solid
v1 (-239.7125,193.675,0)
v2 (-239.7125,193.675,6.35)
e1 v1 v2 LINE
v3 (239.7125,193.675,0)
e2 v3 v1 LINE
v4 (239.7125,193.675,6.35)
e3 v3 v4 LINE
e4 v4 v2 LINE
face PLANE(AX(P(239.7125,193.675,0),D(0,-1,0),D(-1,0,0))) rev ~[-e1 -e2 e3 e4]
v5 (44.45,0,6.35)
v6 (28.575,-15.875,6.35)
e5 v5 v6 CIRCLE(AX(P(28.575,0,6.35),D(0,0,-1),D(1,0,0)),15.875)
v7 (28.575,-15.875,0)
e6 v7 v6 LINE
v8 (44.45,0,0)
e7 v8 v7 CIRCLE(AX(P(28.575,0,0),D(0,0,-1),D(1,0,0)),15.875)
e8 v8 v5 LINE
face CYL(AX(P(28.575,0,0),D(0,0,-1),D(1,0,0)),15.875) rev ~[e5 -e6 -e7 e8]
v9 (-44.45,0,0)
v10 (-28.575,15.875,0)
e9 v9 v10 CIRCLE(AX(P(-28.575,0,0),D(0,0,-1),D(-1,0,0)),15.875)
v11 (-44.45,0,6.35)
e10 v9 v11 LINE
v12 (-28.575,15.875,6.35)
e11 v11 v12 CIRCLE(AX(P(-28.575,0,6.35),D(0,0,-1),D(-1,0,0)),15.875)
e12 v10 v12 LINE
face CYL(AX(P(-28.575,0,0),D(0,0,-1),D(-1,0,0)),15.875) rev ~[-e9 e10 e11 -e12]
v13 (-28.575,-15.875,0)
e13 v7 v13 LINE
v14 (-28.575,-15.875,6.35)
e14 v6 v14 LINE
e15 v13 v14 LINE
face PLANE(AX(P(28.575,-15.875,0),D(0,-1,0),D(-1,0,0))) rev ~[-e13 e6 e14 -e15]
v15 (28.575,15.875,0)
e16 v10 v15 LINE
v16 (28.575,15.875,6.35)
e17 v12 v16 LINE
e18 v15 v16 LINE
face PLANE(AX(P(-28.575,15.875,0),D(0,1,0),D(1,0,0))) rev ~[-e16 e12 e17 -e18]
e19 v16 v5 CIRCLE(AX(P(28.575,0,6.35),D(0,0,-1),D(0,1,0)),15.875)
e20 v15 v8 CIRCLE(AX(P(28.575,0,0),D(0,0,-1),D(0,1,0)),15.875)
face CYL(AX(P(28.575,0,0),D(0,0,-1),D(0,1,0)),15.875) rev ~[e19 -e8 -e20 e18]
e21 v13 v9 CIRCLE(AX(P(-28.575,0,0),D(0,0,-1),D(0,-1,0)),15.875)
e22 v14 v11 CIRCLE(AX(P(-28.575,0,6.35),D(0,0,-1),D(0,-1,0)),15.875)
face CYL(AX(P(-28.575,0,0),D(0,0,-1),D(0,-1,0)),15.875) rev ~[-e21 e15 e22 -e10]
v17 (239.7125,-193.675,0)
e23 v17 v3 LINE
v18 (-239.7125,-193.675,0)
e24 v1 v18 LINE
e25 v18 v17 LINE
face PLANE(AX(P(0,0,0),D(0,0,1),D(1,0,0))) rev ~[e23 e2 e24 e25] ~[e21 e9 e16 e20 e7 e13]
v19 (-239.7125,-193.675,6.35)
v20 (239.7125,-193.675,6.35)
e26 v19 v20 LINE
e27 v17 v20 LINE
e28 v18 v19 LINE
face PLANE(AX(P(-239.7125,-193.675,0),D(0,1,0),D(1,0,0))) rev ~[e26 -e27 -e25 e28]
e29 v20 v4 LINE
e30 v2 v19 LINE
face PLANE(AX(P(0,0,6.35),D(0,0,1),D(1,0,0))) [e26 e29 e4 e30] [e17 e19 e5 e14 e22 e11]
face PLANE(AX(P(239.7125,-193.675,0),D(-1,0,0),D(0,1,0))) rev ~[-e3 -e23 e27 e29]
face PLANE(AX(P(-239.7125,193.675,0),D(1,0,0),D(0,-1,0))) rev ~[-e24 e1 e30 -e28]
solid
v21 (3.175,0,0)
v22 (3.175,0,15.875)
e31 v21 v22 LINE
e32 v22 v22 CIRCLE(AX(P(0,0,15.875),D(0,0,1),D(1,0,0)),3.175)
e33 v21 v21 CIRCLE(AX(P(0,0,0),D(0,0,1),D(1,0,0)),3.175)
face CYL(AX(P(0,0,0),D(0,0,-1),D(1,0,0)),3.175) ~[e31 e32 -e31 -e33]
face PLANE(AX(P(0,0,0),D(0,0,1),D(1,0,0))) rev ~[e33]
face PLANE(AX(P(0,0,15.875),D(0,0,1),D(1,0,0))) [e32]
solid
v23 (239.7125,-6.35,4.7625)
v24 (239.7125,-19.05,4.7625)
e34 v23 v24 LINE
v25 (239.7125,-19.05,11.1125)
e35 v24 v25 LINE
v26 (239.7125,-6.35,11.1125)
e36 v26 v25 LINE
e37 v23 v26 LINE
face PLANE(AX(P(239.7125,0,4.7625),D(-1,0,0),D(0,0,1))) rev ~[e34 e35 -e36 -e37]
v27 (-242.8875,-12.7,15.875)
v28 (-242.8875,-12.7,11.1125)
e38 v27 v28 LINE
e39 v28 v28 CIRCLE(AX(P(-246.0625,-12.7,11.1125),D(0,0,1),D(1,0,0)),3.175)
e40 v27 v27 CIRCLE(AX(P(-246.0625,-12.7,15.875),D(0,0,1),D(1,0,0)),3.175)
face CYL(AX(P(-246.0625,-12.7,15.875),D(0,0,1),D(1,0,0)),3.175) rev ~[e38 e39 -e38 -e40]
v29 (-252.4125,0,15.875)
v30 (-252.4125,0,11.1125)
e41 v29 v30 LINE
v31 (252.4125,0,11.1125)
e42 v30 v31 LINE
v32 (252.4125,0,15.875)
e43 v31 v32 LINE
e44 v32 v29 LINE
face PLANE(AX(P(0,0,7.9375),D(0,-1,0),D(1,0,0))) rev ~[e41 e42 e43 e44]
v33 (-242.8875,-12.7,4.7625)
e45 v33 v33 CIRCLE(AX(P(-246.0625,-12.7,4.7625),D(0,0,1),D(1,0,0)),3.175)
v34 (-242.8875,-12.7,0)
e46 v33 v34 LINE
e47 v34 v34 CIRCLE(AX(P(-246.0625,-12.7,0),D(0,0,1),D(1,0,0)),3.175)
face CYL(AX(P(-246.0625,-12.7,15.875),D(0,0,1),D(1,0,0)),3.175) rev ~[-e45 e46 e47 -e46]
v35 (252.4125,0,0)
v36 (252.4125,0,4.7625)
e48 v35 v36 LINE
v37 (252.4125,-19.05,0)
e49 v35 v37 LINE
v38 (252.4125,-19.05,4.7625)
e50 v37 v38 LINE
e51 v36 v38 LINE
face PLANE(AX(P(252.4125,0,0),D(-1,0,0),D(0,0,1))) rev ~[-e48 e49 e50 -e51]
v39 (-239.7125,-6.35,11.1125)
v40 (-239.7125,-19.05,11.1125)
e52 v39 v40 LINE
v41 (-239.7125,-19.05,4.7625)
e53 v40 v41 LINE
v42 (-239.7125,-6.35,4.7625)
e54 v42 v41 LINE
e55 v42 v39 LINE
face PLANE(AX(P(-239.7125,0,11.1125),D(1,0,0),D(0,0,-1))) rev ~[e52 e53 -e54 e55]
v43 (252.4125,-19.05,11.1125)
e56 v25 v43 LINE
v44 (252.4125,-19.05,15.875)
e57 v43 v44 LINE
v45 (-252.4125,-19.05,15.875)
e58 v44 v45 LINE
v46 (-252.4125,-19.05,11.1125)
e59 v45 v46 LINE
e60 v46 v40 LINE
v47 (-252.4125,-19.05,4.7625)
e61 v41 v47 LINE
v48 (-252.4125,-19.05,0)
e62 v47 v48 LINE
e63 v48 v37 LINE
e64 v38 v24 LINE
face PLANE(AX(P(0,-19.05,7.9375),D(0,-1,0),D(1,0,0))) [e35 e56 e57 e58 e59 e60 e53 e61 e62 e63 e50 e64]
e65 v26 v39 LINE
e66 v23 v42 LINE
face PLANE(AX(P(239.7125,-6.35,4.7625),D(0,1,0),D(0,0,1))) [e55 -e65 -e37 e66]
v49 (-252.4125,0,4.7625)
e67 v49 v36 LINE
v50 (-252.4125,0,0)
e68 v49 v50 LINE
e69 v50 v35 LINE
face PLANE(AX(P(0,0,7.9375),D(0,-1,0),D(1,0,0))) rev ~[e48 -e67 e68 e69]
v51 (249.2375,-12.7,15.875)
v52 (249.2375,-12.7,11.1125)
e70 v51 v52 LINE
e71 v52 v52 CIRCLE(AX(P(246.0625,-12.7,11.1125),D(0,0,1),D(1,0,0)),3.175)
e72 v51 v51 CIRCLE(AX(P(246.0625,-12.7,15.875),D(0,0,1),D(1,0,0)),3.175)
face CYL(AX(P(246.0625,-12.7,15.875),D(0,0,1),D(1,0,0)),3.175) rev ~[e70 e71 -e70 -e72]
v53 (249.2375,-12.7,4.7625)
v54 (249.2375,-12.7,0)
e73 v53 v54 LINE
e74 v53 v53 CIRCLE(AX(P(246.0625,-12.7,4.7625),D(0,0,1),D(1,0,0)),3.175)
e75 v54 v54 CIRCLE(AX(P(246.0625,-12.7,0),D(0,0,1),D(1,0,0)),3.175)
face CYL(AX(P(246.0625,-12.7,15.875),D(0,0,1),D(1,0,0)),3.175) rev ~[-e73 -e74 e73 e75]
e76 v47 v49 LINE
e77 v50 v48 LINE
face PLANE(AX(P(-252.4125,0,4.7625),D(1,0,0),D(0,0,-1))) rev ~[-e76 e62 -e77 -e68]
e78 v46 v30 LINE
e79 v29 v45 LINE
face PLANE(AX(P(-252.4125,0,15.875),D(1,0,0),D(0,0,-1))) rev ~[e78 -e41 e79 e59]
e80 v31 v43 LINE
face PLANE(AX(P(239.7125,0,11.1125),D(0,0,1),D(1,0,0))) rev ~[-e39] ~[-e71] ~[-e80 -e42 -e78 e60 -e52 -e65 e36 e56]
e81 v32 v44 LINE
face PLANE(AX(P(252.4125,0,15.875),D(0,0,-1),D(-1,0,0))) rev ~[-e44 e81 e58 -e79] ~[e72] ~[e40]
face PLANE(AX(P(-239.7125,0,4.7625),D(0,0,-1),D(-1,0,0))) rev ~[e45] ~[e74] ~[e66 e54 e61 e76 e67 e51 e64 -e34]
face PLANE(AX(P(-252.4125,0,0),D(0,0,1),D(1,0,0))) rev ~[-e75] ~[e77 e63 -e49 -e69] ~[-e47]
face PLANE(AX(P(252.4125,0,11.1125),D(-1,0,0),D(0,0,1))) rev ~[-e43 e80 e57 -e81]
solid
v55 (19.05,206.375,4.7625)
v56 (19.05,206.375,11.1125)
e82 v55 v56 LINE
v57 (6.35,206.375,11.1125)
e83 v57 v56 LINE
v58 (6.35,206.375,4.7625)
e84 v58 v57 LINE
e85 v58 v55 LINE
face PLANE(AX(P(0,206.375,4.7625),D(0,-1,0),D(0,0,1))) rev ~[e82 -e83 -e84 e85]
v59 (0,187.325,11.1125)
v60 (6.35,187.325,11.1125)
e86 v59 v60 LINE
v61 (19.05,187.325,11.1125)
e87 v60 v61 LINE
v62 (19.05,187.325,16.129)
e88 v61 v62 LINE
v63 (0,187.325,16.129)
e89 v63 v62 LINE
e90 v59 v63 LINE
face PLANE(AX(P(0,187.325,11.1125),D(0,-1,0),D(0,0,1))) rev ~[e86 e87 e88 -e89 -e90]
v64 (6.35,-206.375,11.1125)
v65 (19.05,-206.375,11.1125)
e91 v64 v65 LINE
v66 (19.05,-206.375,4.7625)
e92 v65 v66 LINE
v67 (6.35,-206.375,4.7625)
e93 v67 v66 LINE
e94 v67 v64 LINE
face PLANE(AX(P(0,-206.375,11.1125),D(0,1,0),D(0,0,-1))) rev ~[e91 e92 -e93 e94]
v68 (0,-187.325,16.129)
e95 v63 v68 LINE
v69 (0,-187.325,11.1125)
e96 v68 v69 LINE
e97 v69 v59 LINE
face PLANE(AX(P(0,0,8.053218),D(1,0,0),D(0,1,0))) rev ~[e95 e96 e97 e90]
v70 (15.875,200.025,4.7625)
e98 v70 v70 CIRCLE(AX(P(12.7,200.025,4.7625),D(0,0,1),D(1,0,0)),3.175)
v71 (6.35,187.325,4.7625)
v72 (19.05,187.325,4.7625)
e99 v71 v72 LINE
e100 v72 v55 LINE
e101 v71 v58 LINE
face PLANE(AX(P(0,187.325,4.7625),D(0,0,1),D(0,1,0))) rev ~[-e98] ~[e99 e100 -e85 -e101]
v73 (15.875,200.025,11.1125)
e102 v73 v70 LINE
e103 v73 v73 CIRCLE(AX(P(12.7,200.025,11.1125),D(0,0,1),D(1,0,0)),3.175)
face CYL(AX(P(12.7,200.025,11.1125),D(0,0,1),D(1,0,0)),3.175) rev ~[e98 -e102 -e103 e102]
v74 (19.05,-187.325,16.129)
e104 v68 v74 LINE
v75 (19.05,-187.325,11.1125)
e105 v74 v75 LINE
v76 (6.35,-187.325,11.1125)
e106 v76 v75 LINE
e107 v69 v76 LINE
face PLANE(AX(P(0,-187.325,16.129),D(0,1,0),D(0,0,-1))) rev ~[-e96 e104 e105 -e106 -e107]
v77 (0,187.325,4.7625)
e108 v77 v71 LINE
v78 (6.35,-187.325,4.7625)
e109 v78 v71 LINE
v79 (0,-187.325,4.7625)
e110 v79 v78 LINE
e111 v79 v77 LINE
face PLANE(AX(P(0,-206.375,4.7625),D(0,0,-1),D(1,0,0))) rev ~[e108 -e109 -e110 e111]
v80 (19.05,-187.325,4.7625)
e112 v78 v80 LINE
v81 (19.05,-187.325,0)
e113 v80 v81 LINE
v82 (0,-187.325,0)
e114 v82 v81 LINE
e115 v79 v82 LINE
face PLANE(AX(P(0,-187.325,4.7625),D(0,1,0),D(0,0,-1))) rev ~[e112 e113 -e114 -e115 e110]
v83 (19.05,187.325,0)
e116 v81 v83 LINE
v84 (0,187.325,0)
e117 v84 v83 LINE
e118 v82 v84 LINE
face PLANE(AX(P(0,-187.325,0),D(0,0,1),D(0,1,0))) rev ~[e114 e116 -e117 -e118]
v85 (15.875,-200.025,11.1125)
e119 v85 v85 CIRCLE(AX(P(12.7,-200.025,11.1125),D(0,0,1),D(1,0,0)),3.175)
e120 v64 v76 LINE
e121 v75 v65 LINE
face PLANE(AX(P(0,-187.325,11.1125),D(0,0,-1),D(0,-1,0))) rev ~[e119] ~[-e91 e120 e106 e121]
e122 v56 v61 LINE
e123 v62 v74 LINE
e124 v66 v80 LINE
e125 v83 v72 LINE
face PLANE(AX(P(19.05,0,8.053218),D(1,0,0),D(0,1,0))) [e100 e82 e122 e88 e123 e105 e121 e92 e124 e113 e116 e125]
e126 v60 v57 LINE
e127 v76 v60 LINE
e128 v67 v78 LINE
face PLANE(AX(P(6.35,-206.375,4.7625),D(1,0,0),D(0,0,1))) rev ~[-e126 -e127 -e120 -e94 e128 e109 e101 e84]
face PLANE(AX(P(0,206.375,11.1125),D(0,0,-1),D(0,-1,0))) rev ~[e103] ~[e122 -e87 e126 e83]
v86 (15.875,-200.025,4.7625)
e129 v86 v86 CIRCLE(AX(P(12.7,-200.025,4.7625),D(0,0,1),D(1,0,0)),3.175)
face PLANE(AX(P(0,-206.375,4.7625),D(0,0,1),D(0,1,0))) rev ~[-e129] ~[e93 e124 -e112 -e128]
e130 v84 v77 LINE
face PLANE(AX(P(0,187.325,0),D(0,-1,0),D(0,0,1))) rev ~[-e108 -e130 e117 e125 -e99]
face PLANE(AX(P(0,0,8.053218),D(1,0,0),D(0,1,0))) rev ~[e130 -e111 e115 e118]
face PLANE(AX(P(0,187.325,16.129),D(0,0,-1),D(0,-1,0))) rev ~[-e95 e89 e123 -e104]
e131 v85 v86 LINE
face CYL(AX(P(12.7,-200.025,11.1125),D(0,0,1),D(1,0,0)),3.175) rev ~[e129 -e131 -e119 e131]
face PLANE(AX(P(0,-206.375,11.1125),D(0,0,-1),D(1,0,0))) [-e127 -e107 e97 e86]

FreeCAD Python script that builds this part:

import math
import FreeCAD as App
import Part
import Sketcher
Q = App.Units.Quantity


def add_polygon(sketch, points):
    """Adds a closed chain of lines whose ends are joined by coincident constraints."""
    first, n = sketch.GeometryCount, len(points)
    for a, b in zip(points, points[1:] + points[:1]):
        sketch.addGeometry(Part.LineSegment(App.Vector(*a, 0), App.Vector(*b, 0)), False)
    for i in range(n):
        sketch.addConstraint(Sketcher.Constraint("Coincident", first + i, 2, first + (i + 1) % n, 1))

doc = App.newDocument("Part")
body = doc.addObject("PartDesign::Body", "Body")

# Sketch on XZ plane
sketch1 = doc.addObject("Sketcher::SketchObject", "Sketch")
body.addObject(sketch1)
sketch1.AttachmentSupport = (doc.XZ_Plane, [""])
sketch1.MapMode = "FlatFace"
add_polygon(sketch1, [(-252.4, 0), (252.4, 0), (252.4, 4.8), (239.7, 4.8), (239.7, 11.1), (252.4, 11.1), (252.4, 15.9), (-252.4, 15.9), (-252.4, 11.1), (-239.7, 11.1), (-239.7, 4.8), (-252.4, 4.8)])  # lines 0-11
sketch1.addConstraint([
    Sketcher.Constraint("Horizontal", 0),
    Sketcher.Constraint("Vertical", 1),
    Sketcher.Constraint("Horizontal", 2),
    Sketcher.Constraint("Vertical", 3),
    Sketcher.Constraint("Horizontal", 4),
    Sketcher.Constraint("Vertical", 5),
    Sketcher.Constraint("Horizontal", 6),
    Sketcher.Constraint("Vertical", 7),
    Sketcher.Constraint("Horizontal", 8),
    Sketcher.Constraint("Vertical", 9),
    Sketcher.Constraint("Horizontal", 10),
    Sketcher.Constraint("Vertical", 11),
    Sketcher.Constraint("Symmetric", 0, 2, 11, 2, -1, 1),
    Sketcher.Constraint("Symmetric", 4, 2, 7, 2, -2),
    Sketcher.Constraint("Symmetric", 2, 2, 9, 2, -2),
    Sketcher.Constraint("Vertical", 1, 2, 4, 2),
    Sketcher.Constraint("Equal", 1, 5),
    Sketcher.Constraint("DistanceX", 2, 2, 2, 1, Q("0.5 in")),
    Sketcher.Constraint("DistanceY", 3, 1, 3, 2, Q("0.25 in")),
    Sketcher.Constraint("DistanceX", 0, 1, 0, 2, Q("19.875 in")),
    Sketcher.Constraint("DistanceY", 1, 1, 1, 2, Q("0.1875 in")),
])
pad1 = doc.addObject("PartDesign::Pad", "Pad")
body.addObject(pad1)
pad1.Profile = sketch1
pad1.Length = Q("0.75 in")

# Sketch on YZ plane
sketch2 = doc.addObject("Sketcher::SketchObject", "Sketch001")
body.addObject(sketch2)
sketch2.AttachmentSupport = (doc.YZ_Plane, [""])
sketch2.MapMode = "FlatFace"
sketch2.AttachmentOffset = App.Placement(App.Vector(0, 0, 9.4375 * 25.4), App.Rotation())
add_polygon(sketch2, [(-6, 11), (-6, 5), (0, 5), (0, 11)])  # lines 0-3
sketch2.addConstraint([
    Sketcher.Constraint("Vertical", 0),
    Sketcher.Constraint("Horizontal", 1),
    Sketcher.Constraint("Vertical", 2),
    Sketcher.Constraint("Horizontal", 3),
    Sketcher.Constraint("PointOnObject", 1, 2, -2),
    Sketcher.Constraint("Equal", 3, 0),
    Sketcher.Constraint("DistanceX", 1, 1, 1, 2, Q("0.25 in")),
    Sketcher.Constraint("DistanceY", -1, 1, 0, 2, Q("0.1875 in")),
])
pocket1 = doc.addObject("PartDesign::Pocket", "Pocket")
body.addObject(pocket1)
pocket1.Profile = sketch2
pocket1.Type = "ThroughAll"

# Sketch on XY plane
sketch3 = doc.addObject("Sketcher::SketchObject", "Sketch002")
body.addObject(sketch3)
sketch3.AttachmentSupport = (doc.XY_Plane, [""])
sketch3.MapMode = "FlatFace"
sketch3.AttachmentOffset = App.Placement(App.Vector(0, 0, 0.625 * 25.4), App.Rotation())
sketch3.addGeometry([
    Part.Circle(App.Vector(-246.1, -12.7, 0), App.Vector(0, 0, 1), 3.2),
    Part.Circle(App.Vector(246.1, -12.7, 0), App.Vector(0, 0, 1), 3.2),
], False)
sketch3.addConstraint([
    Sketcher.Constraint("Equal", 0, 1),
    Sketcher.Constraint("Symmetric", 0, 3, 1, 3, -2),
    Sketcher.Constraint("Diameter", 0, Q("0.25 in")),
    Sketcher.Constraint("DistanceY", 0, 3, -1, 1, Q("0.5 in")),
    Sketcher.Constraint("DistanceX", 0, 3, -1, 1, Q("9.6875 in")),
])
pocket2 = doc.addObject("PartDesign::Pocket", "Pocket001")
body.addObject(pocket2)
pocket2.Profile = sketch3
pocket2.Type = "ThroughAll"
body2 = doc.addObject("PartDesign::Body", "Body001")

# Sketch on YZ plane
sketch4 = doc.addObject("Sketcher::SketchObject", "Sketch003")
body2.addObject(sketch4)
sketch4.AttachmentSupport = (doc.getObject("YZ_Plane001"), [""])
sketch4.MapMode = "FlatFace"
add_polygon(sketch4, [(-187.3, 0), (187.3, 0), (187.3, 4.8), (206.4, 4.8), (206.4, 11.1), (187.3, 11.1), (187.3, 16.1), (-187.3, 16.1), (-187.3, 11.1), (-206.4, 11.1), (-206.4, 4.8), (-187.3, 4.8)])  # lines 0-11
sketch4.addConstraint([
    Sketcher.Constraint("Horizontal", 0),
    Sketcher.Constraint("Vertical", 1),
    Sketcher.Constraint("Horizontal", 2),
    Sketcher.Constraint("Vertical", 3),
    Sketcher.Constraint("Horizontal", 4),
    Sketcher.Constraint("Vertical", 5),
    Sketcher.Constraint("Horizontal", 6),
    Sketcher.Constraint("Vertical", 7),
    Sketcher.Constraint("Horizontal", 8),
    Sketcher.Constraint("Vertical", 9),
    Sketcher.Constraint("Horizontal", 10),
    Sketcher.Constraint("Vertical", 11),
    Sketcher.Constraint("Symmetric", 0, 2, 11, 2, -1, 1),
    Sketcher.Constraint("Symmetric", 4, 2, 7, 2, -2),
    Sketcher.Constraint("Symmetric", 2, 2, 9, 2, -2),
    Sketcher.Constraint("Vertical", 1, 2, 4, 2),
    Sketcher.Constraint("DistanceX", 0, 1, 0, 2, Q("14.75 in")),
    Sketcher.Constraint("DistanceX", 2, 1, 2, 2, Q("0.75 in")),
    Sketcher.Constraint("DistanceY", 3, 1, 3, 2, Q("0.25 in")),
    Sketcher.Constraint("DistanceY", 1, 1, 1, 2, Q("0.1875 in")),
    Sketcher.Constraint("DistanceY", 5, 1, 5, 2, Q("0.1975 in")),
])
pad2 = doc.addObject("PartDesign::Pad", "Pad001")
body2.addObject(pad2)
pad2.Profile = sketch4
pad2.Length = Q("0.75 in")

# Sketch on XY plane
sketch5 = doc.addObject("Sketcher::SketchObject", "Sketch004")
body2.addObject(sketch5)
sketch5.AttachmentSupport = (doc.getObject("XY_Plane001"), [""])
sketch5.MapMode = "FlatFace"
sketch5.AttachmentOffset = App.Placement(App.Vector(0, 0, 0.4375 * 25.4), App.Rotation())
sketch5.addGeometry([
    Part.Circle(App.Vector(12.7, 200, 0), App.Vector(0, 0, 1), 3.2),
    Part.Circle(App.Vector(12.7, -200, 0), App.Vector(0, 0, 1), 3.2),
], False)
sketch5.addConstraint([
    Sketcher.Constraint("Equal", 0, 1),
    Sketcher.Constraint("Symmetric", 0, 3, 1, 3, -1),
    Sketcher.Constraint("Diameter", 0, Q("0.25 in")),
    Sketcher.Constraint("DistanceX", -1, 1, 0, 3, Q("0.5 in")),
    Sketcher.Constraint("DistanceY", 1, 3, 0, 3, Q("15.75 in")),
])
pocket3 = doc.addObject("PartDesign::Pocket", "Pocket002")
body2.addObject(pocket3)
pocket3.Profile = sketch5
pocket3.Type = "ThroughAll"

# Sketch on XZ plane
sketch6 = doc.addObject("Sketcher::SketchObject", "Sketch005")
body2.addObject(sketch6)
sketch6.AttachmentSupport = (doc.getObject("XZ_Plane001"), [""])
sketch6.MapMode = "FlatFace"
sketch6.AttachmentOffset = App.Placement(App.Vector(0, 0, 8.125 * 25.4), App.Rotation())
add_polygon(sketch6, [(0, 11), (0, 5), (6, 5), (6, 11)])  # lines 0-3
sketch6.addConstraint([
    Sketcher.Constraint("Vertical", 0),
    Sketcher.Constraint("Horizontal", 1),
    Sketcher.Constraint("Vertical", 2),
    Sketcher.Constraint("Horizontal", 3),
    Sketcher.Constraint("PointOnObject", 0, 2, -2),
    Sketcher.Constraint("Equal", 3, 0),
    Sketcher.Constraint("DistanceX", 1, 1, 1, 2, Q("0.25 in")),
    Sketcher.Constraint("DistanceY", -1, 1, 0, 2, Q("0.1875 in")),
])
pocket4 = doc.addObject("PartDesign::Pocket", "Pocket003")
body2.addObject(pocket4)
pocket4.Profile = sketch6
pocket4.Type = "ThroughAll"
body3 = doc.addObject("PartDesign::Body", "Body002")

# Sketch on XY plane
sketch7 = doc.addObject("Sketcher::SketchObject", "Sketch006")
body3.addObject(sketch7)
sketch7.AttachmentSupport = (doc.getObject("XY_Plane002"), [""])
sketch7.MapMode = "FlatFace"
add_polygon(sketch7, [(240, 194), (-240, 194), (-240, -194), (240, -194)])  # lines 0-3
sketch7.addGeometry(Part.ArcOfCircle(Part.Circle(App.Vector(-29, 0, 0), App.Vector(0, 0, 1), 16), math.radians(90), math.radians(180)), False)  # 4
sketch7.addGeometry(Part.LineSegment(App.Vector(-29, 16, 0), App.Vector(29, 16, 0)), False)  # 5
sketch7.addGeometry(Part.ArcOfCircle(Part.Circle(App.Vector(29, 0, 0), App.Vector(0, 0, 1), 16), math.radians(0), math.radians(90)), False)  # 6
sketch7.addGeometry(Part.ArcOfCircle(Part.Circle(App.Vector(29, 0, 0), App.Vector(0, 0, 1), 16), math.radians(-90), math.radians(0)), False)  # 7
sketch7.addGeometry(Part.LineSegment(App.Vector(29, -16, 0), App.Vector(-29, -16, 0)), False)  # 8
sketch7.addGeometry(Part.ArcOfCircle(Part.Circle(App.Vector(-29, 0, 0), App.Vector(0, 0, 1), 16), math.radians(180), math.radians(270)), False)  # 9
sketch7.addConstraint([
    Sketcher.Constraint("Tangent", 4, 1, 5, 1),
    Sketcher.Constraint("Tangent", 5, 2, 6, 2),
    Sketcher.Constraint("Tangent", 6, 1, 7, 2),
    Sketcher.Constraint("Tangent", 7, 1, 8, 1),
    Sketcher.Constraint("Tangent", 8, 2, 9, 2),
    Sketcher.Constraint("Tangent", 9, 1, 4, 2),
    Sketcher.Constraint("Horizontal", 0),
    Sketcher.Constraint("Vertical", 1),
    Sketcher.Constraint("Horizontal", 2),
    Sketcher.Constraint("Vertical", 3),
    Sketcher.Constraint("Horizontal", 5),
    Sketcher.Constraint("Horizontal", 8),
    Sketcher.Constraint("Equal", 4, 6),
    Sketcher.Constraint("Equal", 6, 7),
    Sketcher.Constraint("Symmetric", 4, 3, 6, 3, -1, 1),
    Sketcher.Constraint("Symmetric", 0, 2, 2, 2, -1, 1),
    Sketcher.Constraint("PointOnObject", 6, 1, -1),
    Sketcher.Constraint("PointOnObject", 9, 1, -1),
    Sketcher.Constraint("Radius", 4, Q("0.625 in")),
    Sketcher.Constraint("DistanceY", 4, 1, 0, 2, Q("7 in")),
    Sketcher.Constraint("DistanceX", 5, 1, 5, 2, Q("2.25 in")),
    Sketcher.Constraint("DistanceX", 0, 2, 0, 1, Q("18.875 in")),
])
pad3 = doc.addObject("PartDesign::Pad", "Pad002")
body3.addObject(pad3)
pad3.Profile = sketch7
pad3.Length = Q("0.25 in")
body4 = doc.addObject("PartDesign::Body", "Body003")

# Sketch on XY plane
sketch8 = doc.addObject("Sketcher::SketchObject", "Sketch007")
body4.addObject(sketch8)
sketch8.AttachmentSupport = (doc.getObject("XY_Plane003"), [""])
sketch8.MapMode = "FlatFace"
sketch8.addGeometry(Part.Circle(App.Vector(0, 0, 0), App.Vector(0, 0, 1), 3.2), False)
sketch8.addConstraint([
    Sketcher.Constraint("Coincident", 0, 3, -1, 1),
    Sketcher.Constraint("Diameter", 0, Q("0.25 in")),
])
pad4 = doc.addObject("PartDesign::Pad", "Pad003")
body4.addObject(pad4)
pad4.Profile = sketch8
pad4.Length = Q("0.625 in")

doc.recompute()
